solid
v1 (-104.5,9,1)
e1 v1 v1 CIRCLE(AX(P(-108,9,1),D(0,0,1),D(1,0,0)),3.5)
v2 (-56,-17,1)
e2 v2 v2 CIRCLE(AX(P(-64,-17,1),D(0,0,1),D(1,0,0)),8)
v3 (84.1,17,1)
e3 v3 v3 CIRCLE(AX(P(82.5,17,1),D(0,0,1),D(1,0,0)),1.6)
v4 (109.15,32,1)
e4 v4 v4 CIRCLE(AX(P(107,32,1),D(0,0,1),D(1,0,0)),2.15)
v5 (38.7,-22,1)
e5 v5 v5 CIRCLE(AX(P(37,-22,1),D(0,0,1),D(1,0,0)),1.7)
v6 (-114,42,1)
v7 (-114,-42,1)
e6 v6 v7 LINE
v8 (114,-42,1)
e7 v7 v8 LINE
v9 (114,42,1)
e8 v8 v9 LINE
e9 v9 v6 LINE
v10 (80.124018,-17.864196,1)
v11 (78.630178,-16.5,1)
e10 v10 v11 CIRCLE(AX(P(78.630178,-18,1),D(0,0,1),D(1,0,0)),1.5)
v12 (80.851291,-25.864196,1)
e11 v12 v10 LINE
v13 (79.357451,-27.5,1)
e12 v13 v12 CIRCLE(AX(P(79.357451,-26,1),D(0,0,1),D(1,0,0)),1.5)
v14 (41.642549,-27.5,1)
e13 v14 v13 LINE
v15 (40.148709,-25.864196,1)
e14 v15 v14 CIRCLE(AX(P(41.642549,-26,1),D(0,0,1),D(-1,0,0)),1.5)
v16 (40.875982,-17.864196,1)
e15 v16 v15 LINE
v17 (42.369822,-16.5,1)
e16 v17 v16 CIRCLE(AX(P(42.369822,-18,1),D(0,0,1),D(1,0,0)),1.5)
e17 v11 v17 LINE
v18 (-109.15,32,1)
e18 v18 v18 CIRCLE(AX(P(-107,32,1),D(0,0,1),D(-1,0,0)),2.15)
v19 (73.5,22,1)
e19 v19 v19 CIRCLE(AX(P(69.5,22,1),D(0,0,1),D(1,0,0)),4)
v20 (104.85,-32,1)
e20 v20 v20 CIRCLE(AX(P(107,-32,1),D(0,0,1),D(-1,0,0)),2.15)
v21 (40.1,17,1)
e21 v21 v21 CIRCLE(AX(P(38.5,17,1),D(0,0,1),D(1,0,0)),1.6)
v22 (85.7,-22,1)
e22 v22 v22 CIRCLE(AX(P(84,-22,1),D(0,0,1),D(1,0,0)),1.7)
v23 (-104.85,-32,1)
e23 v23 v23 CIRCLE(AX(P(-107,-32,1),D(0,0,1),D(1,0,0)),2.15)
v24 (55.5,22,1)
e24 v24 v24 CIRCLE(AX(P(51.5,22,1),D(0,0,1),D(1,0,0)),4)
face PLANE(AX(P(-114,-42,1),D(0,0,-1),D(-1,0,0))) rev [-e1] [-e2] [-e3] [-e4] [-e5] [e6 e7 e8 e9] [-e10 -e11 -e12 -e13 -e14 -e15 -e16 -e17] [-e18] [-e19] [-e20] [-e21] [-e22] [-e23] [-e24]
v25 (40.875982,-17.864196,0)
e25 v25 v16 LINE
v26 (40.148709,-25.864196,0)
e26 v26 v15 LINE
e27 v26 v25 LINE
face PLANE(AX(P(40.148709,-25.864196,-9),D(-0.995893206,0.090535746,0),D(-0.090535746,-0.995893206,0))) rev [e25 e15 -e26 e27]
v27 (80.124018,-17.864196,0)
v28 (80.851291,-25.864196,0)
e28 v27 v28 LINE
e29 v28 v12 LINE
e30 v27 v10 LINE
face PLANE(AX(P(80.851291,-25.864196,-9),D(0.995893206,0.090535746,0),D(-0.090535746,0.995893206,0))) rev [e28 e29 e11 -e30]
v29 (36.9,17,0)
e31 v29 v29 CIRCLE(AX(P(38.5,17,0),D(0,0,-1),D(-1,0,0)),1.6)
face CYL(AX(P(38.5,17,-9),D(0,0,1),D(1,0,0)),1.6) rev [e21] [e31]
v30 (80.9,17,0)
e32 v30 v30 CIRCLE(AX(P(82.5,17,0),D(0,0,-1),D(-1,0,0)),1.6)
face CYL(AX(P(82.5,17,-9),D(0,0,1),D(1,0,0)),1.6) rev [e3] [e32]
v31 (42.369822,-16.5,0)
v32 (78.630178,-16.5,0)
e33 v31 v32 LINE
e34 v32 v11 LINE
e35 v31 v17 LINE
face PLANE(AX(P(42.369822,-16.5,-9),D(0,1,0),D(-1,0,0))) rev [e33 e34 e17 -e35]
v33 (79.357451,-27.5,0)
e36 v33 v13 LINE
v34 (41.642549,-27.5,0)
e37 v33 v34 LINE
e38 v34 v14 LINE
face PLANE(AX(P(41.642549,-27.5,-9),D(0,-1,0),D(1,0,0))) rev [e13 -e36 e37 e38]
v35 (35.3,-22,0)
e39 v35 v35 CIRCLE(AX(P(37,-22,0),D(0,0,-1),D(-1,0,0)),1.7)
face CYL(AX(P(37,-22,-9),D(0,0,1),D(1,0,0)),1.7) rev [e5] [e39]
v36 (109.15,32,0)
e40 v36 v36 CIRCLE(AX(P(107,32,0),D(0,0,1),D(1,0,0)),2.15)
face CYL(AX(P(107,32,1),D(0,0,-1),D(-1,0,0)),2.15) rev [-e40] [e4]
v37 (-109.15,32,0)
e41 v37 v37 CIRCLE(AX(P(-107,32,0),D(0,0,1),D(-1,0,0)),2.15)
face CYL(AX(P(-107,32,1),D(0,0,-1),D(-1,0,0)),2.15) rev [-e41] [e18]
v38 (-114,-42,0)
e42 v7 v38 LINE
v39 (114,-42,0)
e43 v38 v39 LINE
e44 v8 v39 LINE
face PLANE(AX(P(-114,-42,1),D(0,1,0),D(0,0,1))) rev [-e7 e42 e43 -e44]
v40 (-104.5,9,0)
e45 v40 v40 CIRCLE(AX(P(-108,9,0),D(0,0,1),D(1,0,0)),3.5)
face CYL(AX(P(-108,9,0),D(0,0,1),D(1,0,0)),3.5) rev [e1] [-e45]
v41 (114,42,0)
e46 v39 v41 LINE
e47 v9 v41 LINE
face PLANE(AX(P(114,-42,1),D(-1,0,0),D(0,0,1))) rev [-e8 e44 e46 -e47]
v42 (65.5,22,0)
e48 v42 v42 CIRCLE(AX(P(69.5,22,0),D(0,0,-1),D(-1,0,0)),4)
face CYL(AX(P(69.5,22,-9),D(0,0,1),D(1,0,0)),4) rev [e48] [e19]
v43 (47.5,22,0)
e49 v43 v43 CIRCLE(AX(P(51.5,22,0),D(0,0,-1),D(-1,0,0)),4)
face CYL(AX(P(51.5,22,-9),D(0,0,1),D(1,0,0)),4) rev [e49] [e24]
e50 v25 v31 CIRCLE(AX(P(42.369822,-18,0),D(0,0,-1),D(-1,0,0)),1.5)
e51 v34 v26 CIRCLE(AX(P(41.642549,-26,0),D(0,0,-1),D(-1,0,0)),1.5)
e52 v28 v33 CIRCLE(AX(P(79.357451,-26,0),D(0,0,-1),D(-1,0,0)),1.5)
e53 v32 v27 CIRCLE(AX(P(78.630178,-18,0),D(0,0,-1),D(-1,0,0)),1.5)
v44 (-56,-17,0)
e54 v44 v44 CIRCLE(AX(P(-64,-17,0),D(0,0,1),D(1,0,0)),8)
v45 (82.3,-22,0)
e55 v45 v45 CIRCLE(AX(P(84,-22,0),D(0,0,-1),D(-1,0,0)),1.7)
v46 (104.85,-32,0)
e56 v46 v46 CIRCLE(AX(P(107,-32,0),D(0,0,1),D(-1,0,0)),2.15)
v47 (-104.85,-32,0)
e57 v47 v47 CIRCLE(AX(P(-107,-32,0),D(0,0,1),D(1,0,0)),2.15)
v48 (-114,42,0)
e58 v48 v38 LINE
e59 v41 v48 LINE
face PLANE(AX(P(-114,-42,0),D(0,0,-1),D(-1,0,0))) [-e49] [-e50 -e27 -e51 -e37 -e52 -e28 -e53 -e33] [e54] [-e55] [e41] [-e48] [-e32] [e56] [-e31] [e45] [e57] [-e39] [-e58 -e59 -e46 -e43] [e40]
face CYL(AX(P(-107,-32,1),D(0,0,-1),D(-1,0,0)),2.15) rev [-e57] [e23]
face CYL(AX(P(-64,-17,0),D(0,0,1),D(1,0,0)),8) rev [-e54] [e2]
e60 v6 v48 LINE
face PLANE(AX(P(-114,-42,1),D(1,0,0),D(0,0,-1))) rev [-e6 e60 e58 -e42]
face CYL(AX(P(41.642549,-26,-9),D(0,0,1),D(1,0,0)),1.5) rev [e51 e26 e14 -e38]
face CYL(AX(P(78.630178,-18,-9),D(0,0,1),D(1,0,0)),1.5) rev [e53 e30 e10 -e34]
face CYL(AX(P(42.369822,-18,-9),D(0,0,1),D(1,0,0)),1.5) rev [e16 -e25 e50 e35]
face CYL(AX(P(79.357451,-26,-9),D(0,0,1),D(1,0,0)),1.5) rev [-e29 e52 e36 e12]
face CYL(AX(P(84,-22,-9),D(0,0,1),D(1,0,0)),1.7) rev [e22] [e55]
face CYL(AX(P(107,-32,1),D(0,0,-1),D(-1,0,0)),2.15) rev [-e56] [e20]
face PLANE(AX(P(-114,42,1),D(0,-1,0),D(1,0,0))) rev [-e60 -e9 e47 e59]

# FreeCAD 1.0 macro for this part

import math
import FreeCAD as App
import Part
import Sketcher
from FreeCAD import Vector

doc = App.newDocument("Part")
body = doc.addObject("PartDesign::Body", "Body")

# Sketch on XY plane
sketch1 = body.newObject("Sketcher::SketchObject", "Sketch")
sketch1.AttachmentSupport = (doc.getObject("XY_Plane"), [""])
sketch1.MapMode = "FlatFace"
sketch1.addGeometry([
    Part.LineSegment(Vector(-114, 42, 0), Vector(-114, -42, 0)),  # 0
    Part.LineSegment(Vector(-114, -42, 0), Vector(114, -42, 0)),  # 1
    Part.LineSegment(Vector(114, -42, 0), Vector(114, 42, 0)),  # 2
    Part.LineSegment(Vector(114, 42, 0), Vector(-114, 42, 0)),  # 3
    Part.Circle(Vector(-107, -32, 0), Vector(0, 0, 1), 2.1),  # 4
    Part.Circle(Vector(107, -32, 0), Vector(0, 0, 1), 2.1),  # 5
    Part.Circle(Vector(-107, 32, 0), Vector(0, 0, 1), 2.1),  # 6
    Part.Circle(Vector(107, 32, 0), Vector(0, 0, 1), 2.1),  # 7
], False)
sketch1.addConstraint([
    Sketcher.Constraint("Coincident", 0, 2, 1, 1),
    Sketcher.Constraint("Coincident", 1, 2, 2, 1),
    Sketcher.Constraint("Coincident", 2, 2, 3, 1),
    Sketcher.Constraint("Coincident", 3, 2, 0, 1),
    Sketcher.Constraint("Vertical", 0),
    Sketcher.Constraint("Horizontal", 1),
    Sketcher.Constraint("Vertical", 2),
    Sketcher.Constraint("Horizontal", 3),
    Sketcher.Constraint("Equal", 4, 5),
    Sketcher.Constraint("Equal", 5, 6),
    Sketcher.Constraint("Equal", 6, 7),
    Sketcher.Constraint("Symmetric", 5, 3, 6, 3, -1, 1),
    Sketcher.Constraint("Symmetric", 4, 3, 7, 3, -1, 1),
    Sketcher.Constraint("Symmetric", 0, 2, 2, 2, -1, 1),
    Sketcher.Constraint("Symmetric", 4, 3, 5, 3, -2),
    Sketcher.Constraint("Diameter", 4, 4.3),
    Sketcher.Constraint("DistanceX", 1, 1, 1, 2, 228.0),
    Sketcher.Constraint("DistanceY", 0, 2, 0, 1, 84.0),
    Sketcher.Constraint("DistanceX", 4, 3, -1, 1, 107.0),
    Sketcher.Constraint("DistanceY", 4, 3, -1, 1, 32.0),
])
pad1 = body.newObject("PartDesign::Pad", "Pad")
pad1.Profile = sketch1
pad1.Length = 1

# Sketch on XY plane
sketch2 = body.newObject("Sketcher::SketchObject", "Sketch001")
sketch2.AttachmentSupport = (doc.getObject("XY_Plane"), [""])
sketch2.MapMode = "FlatFace"
sketch2.AttachmentOffset = App.Placement(Vector(0, 0, 1), App.Rotation())
sketch2.addGeometry([
    Part.Circle(Vector(37, -22, 0), Vector(0, 0, 1), 1.7),  # 0
    Part.Circle(Vector(84, -22, 0), Vector(0, 0, 1), 1.7),  # 1
    Part.Circle(Vector(38.5, 17, 0), Vector(0, 0, 1), 1.6),  # 2
    Part.Circle(Vector(82.5, 17, 0), Vector(0, 0, 1), 1.6),  # 3
    Part.Circle(Vector(51.5, 22, 0), Vector(0, 0, 1), 4),  # 4
    Part.Circle(Vector(69.5, 22, 0), Vector(0, 0, 1), 4),  # 5
    Part.LineSegment(Vector(40.9, -17.9, 0), Vector(40.1, -25.9, 0)),  # 6
    Part.ArcOfCircle(Part.Circle(Vector(41.6, -26, 0), Vector(0, 0, 1), 1.5), math.radians(175), math.radians(270)),  # 7
    Part.LineSegment(Vector(41.6, -27.5, 0), Vector(79.4, -27.5, 0)),  # 8
    Part.ArcOfCircle(Part.Circle(Vector(79.4, -26, 0), Vector(0, 0, 1), 1.5), math.radians(-90), math.radians(5)),  # 9
    Part.LineSegment(Vector(80.9, -25.9, 0), Vector(80.1, -17.9, 0)),  # 10
    Part.ArcOfCircle(Part.Circle(Vector(78.6, -18, 0), Vector(0, 0, 1), 1.5), math.radians(5), math.radians(90)),  # 11
    Part.LineSegment(Vector(78.6, -16.5, 0), Vector(42.4, -16.5, 0)),  # 12
    Part.ArcOfCircle(Part.Circle(Vector(42.4, -18, 0), Vector(0, 0, 1), 1.5), math.radians(90), math.radians(175)),  # 13
], False)
sketch2.addConstraint([
    Sketcher.Constraint("Tangent", 6, 2, 7, 1),
    Sketcher.Constraint("Tangent", 7, 2, 8, 1),
    Sketcher.Constraint("Tangent", 8, 2, 9, 1),
    Sketcher.Constraint("Tangent", 9, 2, 10, 1),
    Sketcher.Constraint("Tangent", 10, 2, 11, 1),
    Sketcher.Constraint("Tangent", 11, 2, 12, 1),
    Sketcher.Constraint("Tangent", 12, 2, 13, 1),
    Sketcher.Constraint("Tangent", 13, 2, 6, 1),
    Sketcher.Constraint("Horizontal", 8),
    Sketcher.Constraint("Horizontal", 12),
    Sketcher.Constraint("Equal", 0, 1),
    Sketcher.Constraint("Equal", 2, 3),
    Sketcher.Constraint("Equal", 4, 5),
    Sketcher.Constraint("Equal", 7, 9),
    Sketcher.Constraint("Equal", 9, 11),
    Sketcher.Constraint("Equal", 11, 13),
    Sketcher.Constraint("Horizontal", 0, 3, 1, 3),
    Sketcher.Constraint("Horizontal", 2, 3, 3, 3),
    Sketcher.Constraint("Horizontal", 4, 3, 5, 3),
    Sketcher.Constraint("Horizontal", 6, 2, 9, 2),
    Sketcher.Constraint("Diameter", 4, 8.0),
    Sketcher.Constraint("Diameter", 0, 3.4),
    Sketcher.Constraint("Diameter", 2, 3.2),
    Sketcher.Constraint("Radius", 7, 1.5),
    Sketcher.Constraint("DistanceX", -1, 1, 0, 3, 37.0),
    Sketcher.Constraint("DistanceY", 0, 3, -1, 1, 22.0),
    Sketcher.Constraint("DistanceX", -1, 1, 1, 3, 84.0),
    Sketcher.Constraint("DistanceY", -1, 1, 2, 3, 17.0),
    Sketcher.Constraint("DistanceY", -1, 1, 4, 3, 22.0),
    Sketcher.Constraint("DistanceY", 7, 3, -1, 1, 26.0),
    Sketcher.Constraint("DistanceY", 11, 3, -1, 1, 18.0),
    Sketcher.Constraint("DistanceX", 2, 3, 3, 3, 44.0),
    Sketcher.Constraint("DistanceX", 2, 3, 4, 3, 13.0),
    Sketcher.Constraint("DistanceX", 5, 3, 3, 3, 13.0),
    Sketcher.Constraint("DistanceX", -1, 1, 2, 3, 38.5),
    Sketcher.Constraint("DistanceX", 8, 1, 8, 2, 37.714902),
    Sketcher.Constraint("Distance", 6, 8.03299),
    Sketcher.Constraint("DistanceX", -1, 1, 7, 3, 41.642549),
])
pocket1 = body.newObject("PartDesign::Pocket", "Pocket")
pocket1.Profile = sketch2
pocket1.Length = 10

# Sketch on XY plane
sketch3 = body.newObject("Sketcher::SketchObject", "Sketch002")
sketch3.AttachmentSupport = (doc.getObject("XY_Plane"), [""])
sketch3.MapMode = "FlatFace"
sketch3.AttachmentOffset = App.Placement(Vector(0, 0, 1), App.Rotation())
sketch3.addGeometry([
    Part.Circle(Vector(-108, 9, 0), Vector(0, 0, 1), 3.5),
    Part.Circle(Vector(-64, -17, 0), Vector(0, 0, 1), 8),
], False)
sketch3.addConstraint([
    Sketcher.Constraint("Diameter", 0, 7.0),
    Sketcher.Constraint("Diameter", 1, 16.0),
    Sketcher.Constraint("DistanceX", 0, 3, -1, 1, 108.0),
    Sketcher.Constraint("DistanceY", -1, 1, 0, 3, 9.0),
    Sketcher.Constraint("DistanceX", 1, 3, -1, 1, 64.0),
    Sketcher.Constraint("DistanceY", 1, 3, -1, 1, 17.0),
])
pocket2 = body.newObject("PartDesign::Pocket", "Pocket001")
pocket2.Profile = sketch3
pocket2.Length = 1

doc.recompute()
